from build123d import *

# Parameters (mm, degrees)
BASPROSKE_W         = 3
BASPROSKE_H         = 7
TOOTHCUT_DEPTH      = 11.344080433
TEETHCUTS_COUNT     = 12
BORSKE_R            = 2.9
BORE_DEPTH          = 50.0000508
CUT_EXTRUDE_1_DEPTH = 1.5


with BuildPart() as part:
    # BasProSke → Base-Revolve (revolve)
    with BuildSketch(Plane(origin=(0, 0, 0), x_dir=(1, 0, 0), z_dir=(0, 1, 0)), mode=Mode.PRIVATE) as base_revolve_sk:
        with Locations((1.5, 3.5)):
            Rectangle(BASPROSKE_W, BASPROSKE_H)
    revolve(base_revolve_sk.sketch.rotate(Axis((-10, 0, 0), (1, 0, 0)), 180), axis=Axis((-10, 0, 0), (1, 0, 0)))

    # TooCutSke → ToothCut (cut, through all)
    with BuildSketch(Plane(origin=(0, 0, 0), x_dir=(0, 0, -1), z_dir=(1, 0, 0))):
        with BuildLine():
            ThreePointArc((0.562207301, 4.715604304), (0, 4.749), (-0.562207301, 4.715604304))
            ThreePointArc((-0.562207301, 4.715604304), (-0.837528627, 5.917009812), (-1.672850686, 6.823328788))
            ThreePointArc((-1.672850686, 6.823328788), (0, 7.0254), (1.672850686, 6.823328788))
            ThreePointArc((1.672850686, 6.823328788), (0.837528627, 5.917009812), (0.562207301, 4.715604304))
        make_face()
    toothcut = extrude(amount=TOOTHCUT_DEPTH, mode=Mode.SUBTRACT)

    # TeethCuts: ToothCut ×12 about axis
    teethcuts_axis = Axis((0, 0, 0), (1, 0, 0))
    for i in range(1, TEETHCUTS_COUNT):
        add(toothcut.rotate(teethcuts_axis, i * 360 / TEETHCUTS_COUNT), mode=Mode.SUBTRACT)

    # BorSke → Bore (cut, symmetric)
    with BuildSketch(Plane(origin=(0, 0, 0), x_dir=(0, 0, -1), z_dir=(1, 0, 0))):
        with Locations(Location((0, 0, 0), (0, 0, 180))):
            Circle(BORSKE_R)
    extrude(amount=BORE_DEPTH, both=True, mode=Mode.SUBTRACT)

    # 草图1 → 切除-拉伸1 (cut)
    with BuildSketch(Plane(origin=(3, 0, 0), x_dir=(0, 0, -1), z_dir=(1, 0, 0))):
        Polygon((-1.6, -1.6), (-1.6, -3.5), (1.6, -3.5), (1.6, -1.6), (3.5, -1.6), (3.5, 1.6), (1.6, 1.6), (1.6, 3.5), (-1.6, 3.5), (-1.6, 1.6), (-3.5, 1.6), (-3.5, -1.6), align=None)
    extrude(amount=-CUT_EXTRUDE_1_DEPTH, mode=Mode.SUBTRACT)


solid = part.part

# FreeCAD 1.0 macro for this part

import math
import FreeCAD as App
import Part
import Sketcher


def add_polygon(sketch, points):
    """Adds a closed chain of lines whose ends are joined by coincident constraints."""
    first, n = sketch.GeometryCount, len(points)
    for a, b in zip(points, points[1:] + points[:1]):
        sketch.addGeometry(Part.LineSegment(App.Vector(*a, 0), App.Vector(*b, 0)), False)
    for i in range(n):
        sketch.addConstraint(Sketcher.Constraint("Coincident", first + i, 2, first + (i + 1) % n, 1))

doc = App.newDocument("Part")
body = doc.addObject("PartDesign::Body", "Body")

sketch1 = body.newObject("Sketcher::SketchObject", "Sketch")
sketch1.AttachmentSupport = (doc.getObject("XZ_Plane"), [""])
sketch1.MapMode = "FlatFace"
add_polygon(sketch1, [(0, -7), (0, 0), (3, 0), (3, -7)])
sketch1.addConstraint([
    Sketcher.Constraint("Vertical", 0),
    Sketcher.Constraint("Horizontal", 1),
    Sketcher.Constraint("Vertical", 2),
    Sketcher.Constraint("Horizontal", 3),
    Sketcher.Constraint("Coincident", 0, 2, -1, 1),
    Sketcher.Constraint("DistanceX", 1, 1, 1, 2, 3.0),
    Sketcher.Constraint("DistanceY", 0, 1, 0, 2, 7.0),
])
revolution = body.newObject("PartDesign::Revolution", "Revolution")
revolution.Profile = sketch1
revolution.ReferenceAxis = (sketch1, ["H_Axis"])
revolution.Angle = 360

sketch2 = body.newObject("Sketcher::SketchObject", "Sketch001")
sketch2.AttachmentSupport = (doc.getObject("YZ_Plane"), [""])
sketch2.MapMode = "FlatFace"
sketch2.addGeometry([
    Part.ArcOfCircle(Part.Circle(App.Vector(0, 0, 0), App.Vector(0, 0, 1), 4.749), math.radians(-6.798868), math.radians(6.798868)),
    Part.ArcOfCircle(Part.Circle(App.Vector(4.798181, -2.960786, 0), App.Vector(0, 0, 1), 2.4), math.radians(32.455189), math.radians(91.971772)),
    Part.ArcOfCircle(Part.Circle(App.Vector(0, 0, 0), App.Vector(0, 0, 1), 7.0254), math.radians(-13.775292), math.radians(13.775292)),
    Part.ArcOfCircle(Part.Circle(App.Vector(4.798181, 2.960786, 0), App.Vector(0, 0, 1), 2.4), math.radians(-91.971772), math.radians(-32.455189)),
], False)
sketch2.addConstraint([
    Sketcher.Constraint("Coincident", 0, 1, 1, 2),
    Sketcher.Constraint("Coincident", 1, 1, 2, 1),
    Sketcher.Constraint("Coincident", 2, 2, 3, 2),
    Sketcher.Constraint("Coincident", 3, 1, 0, 2),
    Sketcher.Constraint("Coincident", 0, 3, -1, 1),
    Sketcher.Constraint("Coincident", 2, 3, -1, 1),
    Sketcher.Constraint("Equal", 1, 3),
    Sketcher.Constraint("Symmetric", 1, 3, 3, 3, -1),
    Sketcher.Constraint("Radius", 1, 2.4),
    Sketcher.Constraint("Radius", 0, 4.749),
    Sketcher.Constraint("Radius", 2, 7.0254),
    Sketcher.Constraint("DistanceY", 1, 1, 2, 2, 3.345701),
    Sketcher.Constraint("DistanceX", -1, 1, 1, 3, 4.798181),
])
pocket1 = body.newObject("PartDesign::Pocket", "Pocket")
pocket1.Profile = sketch2
pocket1.Type = "ThroughAll"
pocket1.Reversed = True
doc.recompute()

polarpattern = body.newObject("PartDesign::PolarPattern", "PolarPattern")
polarpattern.Originals = [pocket1]
polarpattern.Axis = (doc.getObject("X_Axis"), [""])
polarpattern.Angle = 360
polarpattern.Occurrences = 12
body.Tip = polarpattern

sketch3 = body.newObject("Sketcher::SketchObject", "Sketch002")
sketch3.AttachmentSupport = (doc.getObject("YZ_Plane"), [""])
sketch3.MapMode = "FlatFace"
sketch3.addGeometry(Part.Circle(App.Vector(0, 0, 0), App.Vector(0, 0, 1), 2.9), False)
sketch3.addConstraint([
    Sketcher.Constraint("Coincident", 0, 3, -1, 1),
    Sketcher.Constraint("Diameter", 0, 5.8),
])
pocket2 = body.newObject("PartDesign::Pocket", "Pocket001")
pocket2.Profile = sketch3
pocket2.Length = 100.000102
pocket2.Midplane = True

sketch4 = body.newObject("Sketcher::SketchObject", "Sketch003")
sketch4.AttachmentSupport = (doc.getObject("YZ_Plane"), [""])
sketch4.MapMode = "FlatFace"
sketch4.AttachmentOffset = App.Placement(App.Vector(0, 0, 3), App.Rotation())
add_polygon(sketch4, [(-1.6, 1.6), (-3.5, 1.6), (-3.5, -1.6), (-1.6, -1.6), (-1.6, -3.5), (1.6, -3.5), (1.6, -1.6), (3.5, -1.6), (3.5, 1.6), (1.6, 1.6), (1.6, 3.5), (-1.6, 3.5)])
sketch4.addConstraint([
    Sketcher.Constraint("Horizontal", 0),
    Sketcher.Constraint("Vertical", 1),
    Sketcher.Constraint("Horizontal", 2),
    Sketcher.Constraint("Vertical", 3),
    Sketcher.Constraint("Horizontal", 4),
    Sketcher.Constraint("Vertical", 5),
    Sketcher.Constraint("Horizontal", 6),
    Sketcher.Constraint("Vertical", 7),
    Sketcher.Constraint("Horizontal", 8),
    Sketcher.Constraint("Vertical", 9),
    Sketcher.Constraint("Horizontal", 10),
    Sketcher.Constraint("Vertical", 11),
    Sketcher.Constraint("Symmetric", 0, 2, 6, 2, -1, 1),
    Sketcher.Constraint("Symmetric", 2, 2, 8, 2, -1, 1),
    Sketcher.Constraint("Symmetric", 4, 2, 10, 2, -1, 1),
    Sketcher.Constraint("Symmetric", 2, 2, 5, 2, -2),
    Sketcher.Constraint("Equal", 10, 1),
    Sketcher.Constraint("Equal", 8, 3),
    Sketcher.Constraint("DistanceX", 0, 2, 0, 1, 1.9),
    Sketcher.Constraint("DistanceX", 4, 1, 4, 2, 3.2),
])
pocket3 = body.newObject("PartDesign::Pocket", "Pocket002")
pocket3.Profile = sketch4
pocket3.Length = 1.5

doc.recompute()
